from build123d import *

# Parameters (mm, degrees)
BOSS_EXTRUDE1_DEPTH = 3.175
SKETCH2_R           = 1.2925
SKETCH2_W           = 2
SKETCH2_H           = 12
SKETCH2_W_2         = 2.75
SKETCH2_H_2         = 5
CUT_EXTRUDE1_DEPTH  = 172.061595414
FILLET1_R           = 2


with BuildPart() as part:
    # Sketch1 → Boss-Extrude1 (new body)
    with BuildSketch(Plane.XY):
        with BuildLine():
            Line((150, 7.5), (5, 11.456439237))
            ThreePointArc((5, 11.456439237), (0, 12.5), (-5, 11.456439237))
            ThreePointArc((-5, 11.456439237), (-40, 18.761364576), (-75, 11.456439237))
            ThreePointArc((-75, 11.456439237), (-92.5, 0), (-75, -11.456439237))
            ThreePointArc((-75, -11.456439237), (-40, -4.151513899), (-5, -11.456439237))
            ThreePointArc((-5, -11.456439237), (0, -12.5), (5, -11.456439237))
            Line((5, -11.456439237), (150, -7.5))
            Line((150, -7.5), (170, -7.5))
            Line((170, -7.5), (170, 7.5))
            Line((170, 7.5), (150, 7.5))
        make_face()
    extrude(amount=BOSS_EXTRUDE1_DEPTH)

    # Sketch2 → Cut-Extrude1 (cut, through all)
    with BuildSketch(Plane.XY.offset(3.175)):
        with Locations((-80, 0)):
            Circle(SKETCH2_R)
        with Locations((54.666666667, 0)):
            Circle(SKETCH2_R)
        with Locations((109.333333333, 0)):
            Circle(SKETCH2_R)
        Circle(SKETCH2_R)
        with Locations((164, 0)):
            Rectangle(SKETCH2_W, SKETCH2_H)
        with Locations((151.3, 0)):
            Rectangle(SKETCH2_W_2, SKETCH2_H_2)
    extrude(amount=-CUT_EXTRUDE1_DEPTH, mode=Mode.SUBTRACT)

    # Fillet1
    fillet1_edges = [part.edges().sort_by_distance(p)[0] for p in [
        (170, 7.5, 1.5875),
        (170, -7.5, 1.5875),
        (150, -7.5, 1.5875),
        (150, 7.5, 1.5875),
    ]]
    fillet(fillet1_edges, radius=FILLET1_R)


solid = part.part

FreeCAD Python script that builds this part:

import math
import FreeCAD as App
import Part
import Sketcher


def edges_at(feature, points):
    """Names of the edges that pass closest to the given points."""
    edges = feature.Shape.Edges
    near = lambda p: min(range(len(edges)), key=lambda i: edges[i].distToShape(Part.Vertex(*p))[0])
    return sorted({f"Edge{near(p) + 1}" for p in points})


def add_polygon(sketch, points):
    """Adds a closed chain of lines whose ends are joined by coincident constraints."""
    first, n = sketch.GeometryCount, len(points)
    for a, b in zip(points, points[1:] + points[:1]):
        sketch.addGeometry(Part.LineSegment(App.Vector(*a, 0), App.Vector(*b, 0)), False)
    for i in range(n):
        sketch.addConstraint(Sketcher.Constraint("Coincident", first + i, 2, first + (i + 1) % n, 1))

doc = App.newDocument("Part")
body = doc.addObject("PartDesign::Body", "Body")

sketch1 = body.newObject("Sketcher::SketchObject", "Sketch")
sketch1.AttachmentSupport = (doc.getObject("XY_Plane"), [""])
sketch1.MapMode = "FlatFace"
sketch1.addGeometry([
    Part.LineSegment(App.Vector(150, 8, 0), App.Vector(5, 11, 0)),
    Part.ArcOfCircle(Part.Circle(App.Vector(0, 0, 0), App.Vector(0, 0, 1), 12), math.radians(66), math.radians(114)),
    Part.ArcOfCircle(Part.Circle(App.Vector(-40, -69, 0), App.Vector(0, 0, 1), 87), math.radians(66), math.radians(114)),
    Part.ArcOfCircle(Part.Circle(App.Vector(-80, 0, 0), App.Vector(0, 0, 1), 12), math.radians(66), math.radians(294)),
    Part.ArcOfCircle(Part.Circle(App.Vector(-40, -92, 0), App.Vector(0, 0, 1), 88), math.radians(66), math.radians(114)),
    Part.ArcOfCircle(Part.Circle(App.Vector(0, 0, 0), App.Vector(0, 0, 1), 12), math.radians(-114), math.radians(-66)),
    Part.LineSegment(App.Vector(5, -11, 0), App.Vector(150, -8, 0)),
    Part.LineSegment(App.Vector(150, -8, 0), App.Vector(170, -8, 0)),
    Part.LineSegment(App.Vector(170, -8, 0), App.Vector(170, 8, 0)),
    Part.LineSegment(App.Vector(170, 8, 0), App.Vector(150, 8, 0)),
], False)
sketch1.addConstraint([
    Sketcher.Constraint("Coincident", 0, 2, 1, 1),
    Sketcher.Constraint("Coincident", 1, 2, 2, 1),
    Sketcher.Constraint("Coincident", 2, 2, 3, 1),
    Sketcher.Constraint("Tangent", 3, 2, 4, 2),
    Sketcher.Constraint("Tangent", 4, 1, 5, 1),
    Sketcher.Constraint("Coincident", 5, 2, 6, 1),
    Sketcher.Constraint("Coincident", 6, 2, 7, 1),
    Sketcher.Constraint("Coincident", 7, 2, 8, 1),
    Sketcher.Constraint("Coincident", 8, 2, 9, 1),
    Sketcher.Constraint("Coincident", 9, 2, 0, 1),
    Sketcher.Constraint("Horizontal", 7),
    Sketcher.Constraint("Vertical", 8),
    Sketcher.Constraint("Horizontal", 9),
    Sketcher.Constraint("Coincident", 1, 3, -1, 1),
    Sketcher.Constraint("Coincident", 5, 3, -1, 1),
    Sketcher.Constraint("Equal", 1, 3),
    Sketcher.Constraint("Equal", 2, 4),
    Sketcher.Constraint("Equal", 3, 5),
    Sketcher.Constraint("Symmetric", 2, 2, 3, 2, -1),
    Sketcher.Constraint("Symmetric", 6, 2, 9, 2, -1),
    Sketcher.Constraint("Horizontal", 0, 2, 1, 2),
    Sketcher.Constraint("Horizontal", 1, 2, 2, 2),
    Sketcher.Constraint("Horizontal", 4, 1, 5, 2),
    Sketcher.Constraint("Radius", 1, 12.5),
    Sketcher.Constraint("Radius", 2, 87.5),
    Sketcher.Constraint("DistanceX", 7, 1, 7, 2, 20.0),
    Sketcher.Constraint("DistanceY", 8, 1, 8, 2, 15.0),
    Sketcher.Constraint("DistanceX", 2, 3, -1, 1, 40.0),
    Sketcher.Constraint("DistanceX", -1, 1, 6, 2, 150.0),
])
pad1 = body.newObject("PartDesign::Pad", "Pad")
pad1.Profile = sketch1
pad1.Length = 3.175

sketch2 = body.newObject("Sketcher::SketchObject", "Sketch001")
sketch2.AttachmentSupport = (doc.getObject("XY_Plane"), [""])
sketch2.MapMode = "FlatFace"
sketch2.AttachmentOffset = App.Placement(App.Vector(0, 0, 3.175), App.Rotation())
sketch2.addGeometry(Part.Circle(App.Vector(-80, 0, 0), App.Vector(0, 0, 1), 1.3), False)
sketch2.addGeometry(Part.Circle(App.Vector(54.7, 0, 0), App.Vector(0, 0, 1), 1.3), False)
sketch2.addGeometry(Part.Circle(App.Vector(109.3, 0, 0), App.Vector(0, 0, 1), 1.3), False)
sketch2.addGeometry(Part.Circle(App.Vector(0, 0, 0), App.Vector(0, 0, 1), 1.3), False)
add_polygon(sketch2, [(163, 6), (163, -6), (165, -6), (165, 6)])
add_polygon(sketch2, [(149.9, 2.5), (149.9, -2.5), (152.7, -2.5), (152.7, 2.5)])
sketch2.addConstraint([
    Sketcher.Constraint("Vertical", 4),
    Sketcher.Constraint("Horizontal", 5),
    Sketcher.Constraint("Vertical", 6),
    Sketcher.Constraint("Horizontal", 7),
    Sketcher.Constraint("Vertical", 8),
    Sketcher.Constraint("Horizontal", 9),
    Sketcher.Constraint("Vertical", 10),
    Sketcher.Constraint("Horizontal", 11),
    Sketcher.Constraint("Coincident", 3, 3, -1, 1),
    Sketcher.Constraint("Equal", 0, 1),
    Sketcher.Constraint("Equal", 1, 2),
    Sketcher.Constraint("Equal", 2, 3),
    Sketcher.Constraint("PointOnObject", 0, 3, -1),
    Sketcher.Constraint("PointOnObject", 1, 3, -1),
    Sketcher.Constraint("PointOnObject", 2, 3, -1),
    Sketcher.Constraint("DistanceX", 5, 1, 5, 2, 2.0),
    Sketcher.Constraint("DistanceY", 4, 2, 4, 1, 12.0),
    Sketcher.Constraint("DistanceY", 8, 2, 8, 1, 5.0),
    Sketcher.Constraint("Diameter", 0, 2.585),
    Sketcher.Constraint("DistanceX", 0, 3, -1, 1, 80.0),
    Sketcher.Constraint("DistanceX", -1, 1, 4, 2, 163.0),
    Sketcher.Constraint("DistanceY", 4, 2, -1, 1, 6.0),
    Sketcher.Constraint("DistanceX", 9, 1, 9, 2, 2.75),
    Sketcher.Constraint("DistanceY", 8, 2, -1, 1, 2.5),
    Sketcher.Constraint("DistanceX", -1, 1, 8, 2, 149.925),
    Sketcher.Constraint("DistanceX", -1, 1, 1, 3, 54.666667),
    Sketcher.Constraint("DistanceX", -1, 1, 2, 3, 109.333333),
])
pocket1 = body.newObject("PartDesign::Pocket", "Pocket")
pocket1.Profile = sketch2
pocket1.Type = "ThroughAll"
doc.recompute()

fillet = body.newObject("PartDesign::Fillet", "Fillet")
fillet.Base = (pocket1, edges_at(pocket1, [
    (170, 7.5, 1.587),
    (170, -7.5, 1.587),
    (150, -7.5, 1.587),
    (150, 7.5, 1.587),
]))
fillet.Radius = 2

doc.recompute()
